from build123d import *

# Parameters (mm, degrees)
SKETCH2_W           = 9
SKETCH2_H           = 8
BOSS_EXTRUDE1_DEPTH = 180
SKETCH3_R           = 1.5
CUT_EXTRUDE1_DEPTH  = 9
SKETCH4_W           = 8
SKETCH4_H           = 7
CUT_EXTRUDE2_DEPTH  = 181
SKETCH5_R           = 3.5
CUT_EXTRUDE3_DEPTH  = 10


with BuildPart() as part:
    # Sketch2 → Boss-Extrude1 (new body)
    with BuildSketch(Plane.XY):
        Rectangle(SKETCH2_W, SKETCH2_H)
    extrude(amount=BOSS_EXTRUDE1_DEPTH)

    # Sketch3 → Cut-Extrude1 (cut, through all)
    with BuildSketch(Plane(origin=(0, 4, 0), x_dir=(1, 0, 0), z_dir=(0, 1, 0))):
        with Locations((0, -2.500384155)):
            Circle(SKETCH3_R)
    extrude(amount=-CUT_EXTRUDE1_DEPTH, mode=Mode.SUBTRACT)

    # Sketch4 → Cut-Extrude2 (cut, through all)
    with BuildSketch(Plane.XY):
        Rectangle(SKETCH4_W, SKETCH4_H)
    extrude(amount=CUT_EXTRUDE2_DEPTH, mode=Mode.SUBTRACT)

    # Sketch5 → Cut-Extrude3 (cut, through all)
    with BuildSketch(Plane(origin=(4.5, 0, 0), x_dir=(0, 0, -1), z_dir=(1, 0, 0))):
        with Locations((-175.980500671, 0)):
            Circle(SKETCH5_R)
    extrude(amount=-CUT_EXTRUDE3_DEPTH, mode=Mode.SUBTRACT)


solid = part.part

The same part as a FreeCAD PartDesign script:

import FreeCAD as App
import Part
import Sketcher
from FreeCAD import Vector

doc = App.newDocument("Part")
body = doc.addObject("PartDesign::Body", "Body")

sketch1 = body.newObject("Sketcher::SketchObject", "Sketch")
sketch1.AttachmentSupport = (doc.getObject("XY_Plane"), [""])
sketch1.MapMode = "FlatFace"
sketch1.addGeometry(Part.LineSegment(Vector(-4, 4, 0), Vector(-4, -4, 0)), False)
sketch1.addGeometry(Part.LineSegment(Vector(-4, -4, 0), Vector(4, -4, 0)), False)
sketch1.addGeometry(Part.LineSegment(Vector(4, -4, 0), Vector(4, 4, 0)), False)
sketch1.addGeometry(Part.LineSegment(Vector(4, 4, 0), Vector(-4, 4, 0)), False)
sketch1.addConstraint(Sketcher.Constraint("Coincident", 0, 2, 1, 1))
sketch1.addConstraint(Sketcher.Constraint("Coincident", 1, 2, 2, 1))
sketch1.addConstraint(Sketcher.Constraint("Coincident", 2, 2, 3, 1))
sketch1.addConstraint(Sketcher.Constraint("Coincident", 3, 2, 0, 1))
sketch1.addConstraint(Sketcher.Constraint("Vertical", 0))
sketch1.addConstraint(Sketcher.Constraint("Horizontal", 1))
sketch1.addConstraint(Sketcher.Constraint("Vertical", 2))
sketch1.addConstraint(Sketcher.Constraint("Horizontal", 3))
sketch1.addConstraint(Sketcher.Constraint("Symmetric", 0, 2, 2, 2, -1, 1))
sketch1.addConstraint(Sketcher.Constraint("DistanceX", 1, 1, 1, 2, 9.0))
sketch1.addConstraint(Sketcher.Constraint("DistanceY", 0, 2, 0, 1, 8.0))
pad1 = body.newObject("PartDesign::Pad", "Pad")
pad1.Profile = sketch1
pad1.Length = 180

sketch2 = body.newObject("Sketcher::SketchObject", "Sketch001")
sketch2.AttachmentSupport = (doc.getObject("XZ_Plane"), [""])
sketch2.MapMode = "FlatFace"
sketch2.AttachmentOffset = App.Placement(Vector(0, 0, -4), App.Rotation())
sketch2.addGeometry(Part.Circle(Vector(0, 2.5, 0), Vector(0, 0, 1), 1.5), False)
sketch2.addConstraint(Sketcher.Constraint("PointOnObject", 0, 3, -2))
sketch2.addConstraint(Sketcher.Constraint("Diameter", 0, 3.0))
sketch2.addConstraint(Sketcher.Constraint("DistanceY", -1, 1, 0, 3, 2.500384))
pocket1 = body.newObject("PartDesign::Pocket", "Pocket")
pocket1.Profile = sketch2
pocket1.Type = "ThroughAll"
pocket1.Reversed = True

sketch3 = body.newObject("Sketcher::SketchObject", "Sketch002")
sketch3.AttachmentSupport = (doc.getObject("XY_Plane"), [""])
sketch3.MapMode = "FlatFace"
sketch3.addGeometry(Part.LineSegment(Vector(-4, 4, 0), Vector(-4, -4, 0)), False)
sketch3.addGeometry(Part.LineSegment(Vector(-4, -4, 0), Vector(4, -4, 0)), False)
sketch3.addGeometry(Part.LineSegment(Vector(4, -4, 0), Vector(4, 4, 0)), False)
sketch3.addGeometry(Part.LineSegment(Vector(4, 4, 0), Vector(-4, 4, 0)), False)
sketch3.addConstraint(Sketcher.Constraint("Coincident", 0, 2, 1, 1))
sketch3.addConstraint(Sketcher.Constraint("Coincident", 1, 2, 2, 1))
sketch3.addConstraint(Sketcher.Constraint("Coincident", 2, 2, 3, 1))
sketch3.addConstraint(Sketcher.Constraint("Coincident", 3, 2, 0, 1))
sketch3.addConstraint(Sketcher.Constraint("Vertical", 0))
sketch3.addConstraint(Sketcher.Constraint("Horizontal", 1))
sketch3.addConstraint(Sketcher.Constraint("Vertical", 2))
sketch3.addConstraint(Sketcher.Constraint("Horizontal", 3))
sketch3.addConstraint(Sketcher.Constraint("Symmetric", 0, 2, 2, 2, -1, 1))
sketch3.addConstraint(Sketcher.Constraint("DistanceX", 1, 1, 1, 2, 8.0))
sketch3.addConstraint(Sketcher.Constraint("DistanceY", 0, 2, 0, 1, 7.0))
pocket2 = body.newObject("PartDesign::Pocket", "Pocket001")
pocket2.Profile = sketch3
pocket2.Type = "ThroughAll"
pocket2.Reversed = True

sketch4 = body.newObject("Sketcher::SketchObject", "Sketch003")
sketch4.AttachmentSupport = (doc.getObject("YZ_Plane"), [""])
sketch4.MapMode = "FlatFace"
sketch4.AttachmentOffset = App.Placement(Vector(0, 0, 4.5), App.Rotation())
sketch4.addGeometry(Part.Circle(Vector(0, 176, 0), Vector(0, 0, 1), 3.5), False)
sketch4.addConstraint(Sketcher.Constraint("PointOnObject", 0, 3, -2))
sketch4.addConstraint(Sketcher.Constraint("Diameter", 0, 7.0))
sketch4.addConstraint(Sketcher.Constraint("DistanceY", -1, 1, 0, 3, 175.980501))
pocket3 = body.newObject("PartDesign::Pocket", "Pocket002")
pocket3.Profile = sketch4
pocket3.Type = "ThroughAll"

doc.recompute()
